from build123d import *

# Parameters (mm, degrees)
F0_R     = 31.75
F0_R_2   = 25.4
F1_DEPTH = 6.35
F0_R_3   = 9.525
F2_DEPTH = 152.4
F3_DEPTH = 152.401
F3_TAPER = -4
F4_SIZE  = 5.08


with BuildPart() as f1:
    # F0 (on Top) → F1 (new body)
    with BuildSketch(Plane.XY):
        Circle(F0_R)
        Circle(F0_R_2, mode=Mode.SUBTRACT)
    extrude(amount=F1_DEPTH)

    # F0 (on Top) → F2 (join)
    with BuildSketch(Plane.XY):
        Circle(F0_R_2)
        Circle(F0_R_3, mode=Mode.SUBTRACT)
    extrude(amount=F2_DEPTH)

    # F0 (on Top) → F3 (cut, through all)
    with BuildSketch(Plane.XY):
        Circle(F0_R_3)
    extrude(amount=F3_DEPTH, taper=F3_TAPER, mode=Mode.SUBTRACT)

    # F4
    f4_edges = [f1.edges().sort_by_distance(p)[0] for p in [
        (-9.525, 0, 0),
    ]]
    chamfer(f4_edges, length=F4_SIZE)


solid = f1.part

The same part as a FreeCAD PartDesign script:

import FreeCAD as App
import Part
import Sketcher
from FreeCAD import Vector
Q = App.Units.Quantity


def edges_at(feature, points):
    """Names of the edges that pass closest to the given points."""
    edges = feature.Shape.Edges
    near = lambda p: min(range(len(edges)), key=lambda i: edges[i].distToShape(Part.Vertex(*p))[0])
    return sorted({f"Edge{near(p) + 1}" for p in points})

doc = App.newDocument("Part")
body = doc.addObject("PartDesign::Body", "Body")

sketch1 = body.newObject("Sketcher::SketchObject", "Sketch")
sketch1.AttachmentSupport = (doc.getObject("XY_Plane"), [""])
sketch1.MapMode = "FlatFace"
sketch1.addGeometry([
    Part.Circle(Vector(0, 0, 0), Vector(0, 0, 1), 32),
    Part.Circle(Vector(0, 0, 0), Vector(0, 0, 1), 25),
], False)
sketch1.addConstraint([
    Sketcher.Constraint("Coincident", 0, 3, -1, 1),
    Sketcher.Constraint("Coincident", 1, 3, -1, 1),
    Sketcher.Constraint("Diameter", 1, Q("2 in")),
    Sketcher.Constraint("Diameter", 0, Q("2.5 in")),
])
pad1 = body.newObject("PartDesign::Pad", "Pad")
pad1.Profile = sketch1
pad1.Length = Q("0.25 in")

sketch2 = body.newObject("Sketcher::SketchObject", "Sketch001")
sketch2.AttachmentSupport = (doc.getObject("XY_Plane"), [""])
sketch2.MapMode = "FlatFace"
sketch2.addGeometry([
    Part.Circle(Vector(0, 0, 0), Vector(0, 0, 1), 25),
    Part.Circle(Vector(0, 0, 0), Vector(0, 0, 1), 10),
], False)
sketch2.addConstraint([
    Sketcher.Constraint("Coincident", 0, 3, -1, 1),
    Sketcher.Constraint("Coincident", 1, 3, -1, 1),
    Sketcher.Constraint("Diameter", 0, Q("2 in")),
    Sketcher.Constraint("Diameter", 1, Q("0.75 in")),
])
pad2 = body.newObject("PartDesign::Pad", "Pad001")
pad2.Profile = sketch2
pad2.Length = Q("6 in")

sketch3 = body.newObject("Sketcher::SketchObject", "Sketch002")
sketch3.AttachmentSupport = (doc.getObject("XY_Plane"), [""])
sketch3.MapMode = "FlatFace"
sketch3.addGeometry(Part.Circle(Vector(0, 0, 0), Vector(0, 0, 1), 10), False)
sketch3.addConstraint([
    Sketcher.Constraint("Coincident", 0, 3, -1, 1),
    Sketcher.Constraint("Diameter", 0, Q("0.75 in")),
])
pocket1 = body.newObject("PartDesign::Pocket", "Pocket")
pocket1.Profile = sketch3
pocket1.Length = 152.401
pocket1.Reversed = True
pocket1.TaperAngle = 4
doc.recompute()

chamfer = body.newObject("PartDesign::Chamfer", "Chamfer")
chamfer.Base = (pocket1, edges_at(pocket1, [(-9.525, 0, 0)]))
chamfer.Size = Q("0.2 in")

doc.recompute()
